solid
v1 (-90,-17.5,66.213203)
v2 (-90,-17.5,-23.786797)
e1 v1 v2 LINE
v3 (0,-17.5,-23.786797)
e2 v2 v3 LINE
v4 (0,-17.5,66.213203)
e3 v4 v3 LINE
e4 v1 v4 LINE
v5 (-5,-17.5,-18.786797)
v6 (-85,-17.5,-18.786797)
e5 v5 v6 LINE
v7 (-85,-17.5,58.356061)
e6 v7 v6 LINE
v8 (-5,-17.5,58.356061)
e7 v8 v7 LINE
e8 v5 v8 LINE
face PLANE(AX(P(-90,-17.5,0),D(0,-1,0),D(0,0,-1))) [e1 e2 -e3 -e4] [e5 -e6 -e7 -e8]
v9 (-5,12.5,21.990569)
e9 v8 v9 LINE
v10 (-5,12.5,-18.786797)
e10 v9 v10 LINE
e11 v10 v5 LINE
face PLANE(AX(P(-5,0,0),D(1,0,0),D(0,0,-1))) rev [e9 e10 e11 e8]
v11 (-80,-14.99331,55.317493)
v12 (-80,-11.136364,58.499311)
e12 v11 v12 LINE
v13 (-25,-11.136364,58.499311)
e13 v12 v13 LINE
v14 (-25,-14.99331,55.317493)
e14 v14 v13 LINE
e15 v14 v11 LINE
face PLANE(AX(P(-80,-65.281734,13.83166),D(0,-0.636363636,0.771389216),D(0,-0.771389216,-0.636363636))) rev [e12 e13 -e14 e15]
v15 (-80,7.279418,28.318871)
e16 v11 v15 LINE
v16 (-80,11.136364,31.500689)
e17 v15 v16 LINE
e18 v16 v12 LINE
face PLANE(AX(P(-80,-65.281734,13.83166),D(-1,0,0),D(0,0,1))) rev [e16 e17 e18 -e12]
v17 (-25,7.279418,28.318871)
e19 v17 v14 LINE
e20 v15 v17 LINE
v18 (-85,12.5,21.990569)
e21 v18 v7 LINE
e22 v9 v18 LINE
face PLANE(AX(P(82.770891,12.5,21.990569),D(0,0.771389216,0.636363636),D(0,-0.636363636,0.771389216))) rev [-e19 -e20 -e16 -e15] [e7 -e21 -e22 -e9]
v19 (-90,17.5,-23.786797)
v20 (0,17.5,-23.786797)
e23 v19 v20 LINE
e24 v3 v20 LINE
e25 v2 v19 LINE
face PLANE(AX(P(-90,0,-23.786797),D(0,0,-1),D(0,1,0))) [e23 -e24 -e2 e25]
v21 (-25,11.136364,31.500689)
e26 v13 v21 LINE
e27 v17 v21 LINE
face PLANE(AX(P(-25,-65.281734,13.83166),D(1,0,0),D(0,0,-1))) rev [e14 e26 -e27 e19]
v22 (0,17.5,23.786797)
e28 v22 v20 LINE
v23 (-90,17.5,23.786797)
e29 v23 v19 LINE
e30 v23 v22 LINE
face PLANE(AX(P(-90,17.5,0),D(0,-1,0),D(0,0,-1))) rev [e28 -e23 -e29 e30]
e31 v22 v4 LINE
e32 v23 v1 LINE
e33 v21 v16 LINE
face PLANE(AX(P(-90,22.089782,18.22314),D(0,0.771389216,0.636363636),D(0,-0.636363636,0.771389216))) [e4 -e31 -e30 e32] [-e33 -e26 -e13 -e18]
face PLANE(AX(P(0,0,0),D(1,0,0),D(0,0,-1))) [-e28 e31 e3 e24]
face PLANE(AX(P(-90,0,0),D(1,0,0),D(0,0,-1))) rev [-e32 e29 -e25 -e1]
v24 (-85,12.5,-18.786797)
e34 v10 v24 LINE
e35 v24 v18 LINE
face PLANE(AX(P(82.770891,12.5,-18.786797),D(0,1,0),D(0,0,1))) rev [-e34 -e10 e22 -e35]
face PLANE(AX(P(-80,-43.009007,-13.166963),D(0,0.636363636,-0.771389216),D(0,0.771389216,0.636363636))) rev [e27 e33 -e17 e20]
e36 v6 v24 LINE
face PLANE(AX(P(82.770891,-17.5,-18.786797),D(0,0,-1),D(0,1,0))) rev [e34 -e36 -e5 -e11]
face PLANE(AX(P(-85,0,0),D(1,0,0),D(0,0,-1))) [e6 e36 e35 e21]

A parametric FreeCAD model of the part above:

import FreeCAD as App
import Part
import Sketcher
from FreeCAD import Vector


def add_polygon(sketch, points):
    """Adds a closed chain of lines whose ends are joined by coincident constraints."""
    first, n = sketch.GeometryCount, len(points)
    for a, b in zip(points, points[1:] + points[:1]):
        sketch.addGeometry(Part.LineSegment(App.Vector(*a, 0), App.Vector(*b, 0)), False)
    for i in range(n):
        sketch.addConstraint(Sketcher.Constraint("Coincident", first + i, 2, first + (i + 1) % n, 1))

doc = App.newDocument("Part")
body = doc.addObject("PartDesign::Body", "Body")

sketch1 = body.newObject("Sketcher::SketchObject", "Sketch")
sketch1.AttachmentSupport = (doc.getObject("YZ_Plane"), [""])
sketch1.MapMode = "FlatFace"
add_polygon(sketch1, [(18, -24), (18, 24), (-18, 66), (-18, -24)])
sketch1.addConstraint([
    Sketcher.Constraint("Vertical", 0),
    Sketcher.Constraint("Vertical", 2),
    Sketcher.Constraint("Horizontal", 3),
    Sketcher.Constraint("Symmetric", 0, 2, 2, 2, -1, 1),
    Sketcher.Constraint("DistanceX", 3, 1, 3, 2, 35.0),
    Sketcher.Constraint("DistanceY", 2, 2, 2, 1, 90.0),
    Sketcher.Constraint("Distance", 1, 55.0),
])
pad1 = body.newObject("PartDesign::Pad", "Pad")
pad1.Profile = sketch1
pad1.Length = 90
pad1.Reversed = True

sketch2 = body.newObject("Sketcher::SketchObject", "Sketch001")
sketch2.AttachmentSupport = (doc.getObject("YZ_Plane"), [""])
sketch2.MapMode = "FlatFace"
sketch2.AttachmentOffset = App.Placement(Vector(0, 0, -45), App.Rotation())
add_polygon(sketch2, [(12, -19), (-18, -19), (-18, 58), (12, 22)])
sketch2.addConstraint([
    Sketcher.Constraint("Horizontal", 0),
    Sketcher.Constraint("Vertical", 1),
    Sketcher.Constraint("Vertical", 3),
    Sketcher.Constraint("DistanceX", 0, 2, 0, 1, 30.0),
    Sketcher.Constraint("DistanceX", 0, 2, -1, 1, 17.5),
    Sketcher.Constraint("DistanceY", 1, 1, 1, 2, 77.142857),
    Sketcher.Constraint("DistanceY", 3, 2, 3, 1, 40.777366),
    Sketcher.Constraint("DistanceY", -1, 1, 1, 2, 58.356061),
])
pocket1 = body.newObject("PartDesign::Pocket", "Pocket")
pocket1.Profile = sketch2
pocket1.Type = "TwoLengths"
pocket1.Length = 40
pocket1.Length2 = 40

sketch3 = body.newObject("Sketcher::SketchObject", "Sketch002")
sketch3.Placement = App.Placement(Vector(0, 22.089782, 18.22314), App.Rotation(Vector(1, 0, 0), Vector(0, 0.636363636, -0.771389216), Vector(0, 0.771389216, 0.636363636), "ZXY"))
add_polygon(sketch3, [(-80, -17), (-80, -52), (-25, -52), (-25, -17)])
sketch3.addConstraint([
    Sketcher.Constraint("Vertical", 0),
    Sketcher.Constraint("Horizontal", 1),
    Sketcher.Constraint("Vertical", 2),
    Sketcher.Constraint("Horizontal", 3),
    Sketcher.Constraint("DistanceX", 1, 1, 1, 2, 55.0),
    Sketcher.Constraint("DistanceY", 0, 2, 0, 1, 35.0),
    Sketcher.Constraint("DistanceX", 0, 2, -1, 1, 80.0),
    Sketcher.Constraint("DistanceY", 0, 2, -1, 1, 52.212515),
])
pocket2 = body.newObject("PartDesign::Pocket", "Pocket001")
pocket2.Profile = sketch3
pocket2.Length = 5

doc.recompute()
